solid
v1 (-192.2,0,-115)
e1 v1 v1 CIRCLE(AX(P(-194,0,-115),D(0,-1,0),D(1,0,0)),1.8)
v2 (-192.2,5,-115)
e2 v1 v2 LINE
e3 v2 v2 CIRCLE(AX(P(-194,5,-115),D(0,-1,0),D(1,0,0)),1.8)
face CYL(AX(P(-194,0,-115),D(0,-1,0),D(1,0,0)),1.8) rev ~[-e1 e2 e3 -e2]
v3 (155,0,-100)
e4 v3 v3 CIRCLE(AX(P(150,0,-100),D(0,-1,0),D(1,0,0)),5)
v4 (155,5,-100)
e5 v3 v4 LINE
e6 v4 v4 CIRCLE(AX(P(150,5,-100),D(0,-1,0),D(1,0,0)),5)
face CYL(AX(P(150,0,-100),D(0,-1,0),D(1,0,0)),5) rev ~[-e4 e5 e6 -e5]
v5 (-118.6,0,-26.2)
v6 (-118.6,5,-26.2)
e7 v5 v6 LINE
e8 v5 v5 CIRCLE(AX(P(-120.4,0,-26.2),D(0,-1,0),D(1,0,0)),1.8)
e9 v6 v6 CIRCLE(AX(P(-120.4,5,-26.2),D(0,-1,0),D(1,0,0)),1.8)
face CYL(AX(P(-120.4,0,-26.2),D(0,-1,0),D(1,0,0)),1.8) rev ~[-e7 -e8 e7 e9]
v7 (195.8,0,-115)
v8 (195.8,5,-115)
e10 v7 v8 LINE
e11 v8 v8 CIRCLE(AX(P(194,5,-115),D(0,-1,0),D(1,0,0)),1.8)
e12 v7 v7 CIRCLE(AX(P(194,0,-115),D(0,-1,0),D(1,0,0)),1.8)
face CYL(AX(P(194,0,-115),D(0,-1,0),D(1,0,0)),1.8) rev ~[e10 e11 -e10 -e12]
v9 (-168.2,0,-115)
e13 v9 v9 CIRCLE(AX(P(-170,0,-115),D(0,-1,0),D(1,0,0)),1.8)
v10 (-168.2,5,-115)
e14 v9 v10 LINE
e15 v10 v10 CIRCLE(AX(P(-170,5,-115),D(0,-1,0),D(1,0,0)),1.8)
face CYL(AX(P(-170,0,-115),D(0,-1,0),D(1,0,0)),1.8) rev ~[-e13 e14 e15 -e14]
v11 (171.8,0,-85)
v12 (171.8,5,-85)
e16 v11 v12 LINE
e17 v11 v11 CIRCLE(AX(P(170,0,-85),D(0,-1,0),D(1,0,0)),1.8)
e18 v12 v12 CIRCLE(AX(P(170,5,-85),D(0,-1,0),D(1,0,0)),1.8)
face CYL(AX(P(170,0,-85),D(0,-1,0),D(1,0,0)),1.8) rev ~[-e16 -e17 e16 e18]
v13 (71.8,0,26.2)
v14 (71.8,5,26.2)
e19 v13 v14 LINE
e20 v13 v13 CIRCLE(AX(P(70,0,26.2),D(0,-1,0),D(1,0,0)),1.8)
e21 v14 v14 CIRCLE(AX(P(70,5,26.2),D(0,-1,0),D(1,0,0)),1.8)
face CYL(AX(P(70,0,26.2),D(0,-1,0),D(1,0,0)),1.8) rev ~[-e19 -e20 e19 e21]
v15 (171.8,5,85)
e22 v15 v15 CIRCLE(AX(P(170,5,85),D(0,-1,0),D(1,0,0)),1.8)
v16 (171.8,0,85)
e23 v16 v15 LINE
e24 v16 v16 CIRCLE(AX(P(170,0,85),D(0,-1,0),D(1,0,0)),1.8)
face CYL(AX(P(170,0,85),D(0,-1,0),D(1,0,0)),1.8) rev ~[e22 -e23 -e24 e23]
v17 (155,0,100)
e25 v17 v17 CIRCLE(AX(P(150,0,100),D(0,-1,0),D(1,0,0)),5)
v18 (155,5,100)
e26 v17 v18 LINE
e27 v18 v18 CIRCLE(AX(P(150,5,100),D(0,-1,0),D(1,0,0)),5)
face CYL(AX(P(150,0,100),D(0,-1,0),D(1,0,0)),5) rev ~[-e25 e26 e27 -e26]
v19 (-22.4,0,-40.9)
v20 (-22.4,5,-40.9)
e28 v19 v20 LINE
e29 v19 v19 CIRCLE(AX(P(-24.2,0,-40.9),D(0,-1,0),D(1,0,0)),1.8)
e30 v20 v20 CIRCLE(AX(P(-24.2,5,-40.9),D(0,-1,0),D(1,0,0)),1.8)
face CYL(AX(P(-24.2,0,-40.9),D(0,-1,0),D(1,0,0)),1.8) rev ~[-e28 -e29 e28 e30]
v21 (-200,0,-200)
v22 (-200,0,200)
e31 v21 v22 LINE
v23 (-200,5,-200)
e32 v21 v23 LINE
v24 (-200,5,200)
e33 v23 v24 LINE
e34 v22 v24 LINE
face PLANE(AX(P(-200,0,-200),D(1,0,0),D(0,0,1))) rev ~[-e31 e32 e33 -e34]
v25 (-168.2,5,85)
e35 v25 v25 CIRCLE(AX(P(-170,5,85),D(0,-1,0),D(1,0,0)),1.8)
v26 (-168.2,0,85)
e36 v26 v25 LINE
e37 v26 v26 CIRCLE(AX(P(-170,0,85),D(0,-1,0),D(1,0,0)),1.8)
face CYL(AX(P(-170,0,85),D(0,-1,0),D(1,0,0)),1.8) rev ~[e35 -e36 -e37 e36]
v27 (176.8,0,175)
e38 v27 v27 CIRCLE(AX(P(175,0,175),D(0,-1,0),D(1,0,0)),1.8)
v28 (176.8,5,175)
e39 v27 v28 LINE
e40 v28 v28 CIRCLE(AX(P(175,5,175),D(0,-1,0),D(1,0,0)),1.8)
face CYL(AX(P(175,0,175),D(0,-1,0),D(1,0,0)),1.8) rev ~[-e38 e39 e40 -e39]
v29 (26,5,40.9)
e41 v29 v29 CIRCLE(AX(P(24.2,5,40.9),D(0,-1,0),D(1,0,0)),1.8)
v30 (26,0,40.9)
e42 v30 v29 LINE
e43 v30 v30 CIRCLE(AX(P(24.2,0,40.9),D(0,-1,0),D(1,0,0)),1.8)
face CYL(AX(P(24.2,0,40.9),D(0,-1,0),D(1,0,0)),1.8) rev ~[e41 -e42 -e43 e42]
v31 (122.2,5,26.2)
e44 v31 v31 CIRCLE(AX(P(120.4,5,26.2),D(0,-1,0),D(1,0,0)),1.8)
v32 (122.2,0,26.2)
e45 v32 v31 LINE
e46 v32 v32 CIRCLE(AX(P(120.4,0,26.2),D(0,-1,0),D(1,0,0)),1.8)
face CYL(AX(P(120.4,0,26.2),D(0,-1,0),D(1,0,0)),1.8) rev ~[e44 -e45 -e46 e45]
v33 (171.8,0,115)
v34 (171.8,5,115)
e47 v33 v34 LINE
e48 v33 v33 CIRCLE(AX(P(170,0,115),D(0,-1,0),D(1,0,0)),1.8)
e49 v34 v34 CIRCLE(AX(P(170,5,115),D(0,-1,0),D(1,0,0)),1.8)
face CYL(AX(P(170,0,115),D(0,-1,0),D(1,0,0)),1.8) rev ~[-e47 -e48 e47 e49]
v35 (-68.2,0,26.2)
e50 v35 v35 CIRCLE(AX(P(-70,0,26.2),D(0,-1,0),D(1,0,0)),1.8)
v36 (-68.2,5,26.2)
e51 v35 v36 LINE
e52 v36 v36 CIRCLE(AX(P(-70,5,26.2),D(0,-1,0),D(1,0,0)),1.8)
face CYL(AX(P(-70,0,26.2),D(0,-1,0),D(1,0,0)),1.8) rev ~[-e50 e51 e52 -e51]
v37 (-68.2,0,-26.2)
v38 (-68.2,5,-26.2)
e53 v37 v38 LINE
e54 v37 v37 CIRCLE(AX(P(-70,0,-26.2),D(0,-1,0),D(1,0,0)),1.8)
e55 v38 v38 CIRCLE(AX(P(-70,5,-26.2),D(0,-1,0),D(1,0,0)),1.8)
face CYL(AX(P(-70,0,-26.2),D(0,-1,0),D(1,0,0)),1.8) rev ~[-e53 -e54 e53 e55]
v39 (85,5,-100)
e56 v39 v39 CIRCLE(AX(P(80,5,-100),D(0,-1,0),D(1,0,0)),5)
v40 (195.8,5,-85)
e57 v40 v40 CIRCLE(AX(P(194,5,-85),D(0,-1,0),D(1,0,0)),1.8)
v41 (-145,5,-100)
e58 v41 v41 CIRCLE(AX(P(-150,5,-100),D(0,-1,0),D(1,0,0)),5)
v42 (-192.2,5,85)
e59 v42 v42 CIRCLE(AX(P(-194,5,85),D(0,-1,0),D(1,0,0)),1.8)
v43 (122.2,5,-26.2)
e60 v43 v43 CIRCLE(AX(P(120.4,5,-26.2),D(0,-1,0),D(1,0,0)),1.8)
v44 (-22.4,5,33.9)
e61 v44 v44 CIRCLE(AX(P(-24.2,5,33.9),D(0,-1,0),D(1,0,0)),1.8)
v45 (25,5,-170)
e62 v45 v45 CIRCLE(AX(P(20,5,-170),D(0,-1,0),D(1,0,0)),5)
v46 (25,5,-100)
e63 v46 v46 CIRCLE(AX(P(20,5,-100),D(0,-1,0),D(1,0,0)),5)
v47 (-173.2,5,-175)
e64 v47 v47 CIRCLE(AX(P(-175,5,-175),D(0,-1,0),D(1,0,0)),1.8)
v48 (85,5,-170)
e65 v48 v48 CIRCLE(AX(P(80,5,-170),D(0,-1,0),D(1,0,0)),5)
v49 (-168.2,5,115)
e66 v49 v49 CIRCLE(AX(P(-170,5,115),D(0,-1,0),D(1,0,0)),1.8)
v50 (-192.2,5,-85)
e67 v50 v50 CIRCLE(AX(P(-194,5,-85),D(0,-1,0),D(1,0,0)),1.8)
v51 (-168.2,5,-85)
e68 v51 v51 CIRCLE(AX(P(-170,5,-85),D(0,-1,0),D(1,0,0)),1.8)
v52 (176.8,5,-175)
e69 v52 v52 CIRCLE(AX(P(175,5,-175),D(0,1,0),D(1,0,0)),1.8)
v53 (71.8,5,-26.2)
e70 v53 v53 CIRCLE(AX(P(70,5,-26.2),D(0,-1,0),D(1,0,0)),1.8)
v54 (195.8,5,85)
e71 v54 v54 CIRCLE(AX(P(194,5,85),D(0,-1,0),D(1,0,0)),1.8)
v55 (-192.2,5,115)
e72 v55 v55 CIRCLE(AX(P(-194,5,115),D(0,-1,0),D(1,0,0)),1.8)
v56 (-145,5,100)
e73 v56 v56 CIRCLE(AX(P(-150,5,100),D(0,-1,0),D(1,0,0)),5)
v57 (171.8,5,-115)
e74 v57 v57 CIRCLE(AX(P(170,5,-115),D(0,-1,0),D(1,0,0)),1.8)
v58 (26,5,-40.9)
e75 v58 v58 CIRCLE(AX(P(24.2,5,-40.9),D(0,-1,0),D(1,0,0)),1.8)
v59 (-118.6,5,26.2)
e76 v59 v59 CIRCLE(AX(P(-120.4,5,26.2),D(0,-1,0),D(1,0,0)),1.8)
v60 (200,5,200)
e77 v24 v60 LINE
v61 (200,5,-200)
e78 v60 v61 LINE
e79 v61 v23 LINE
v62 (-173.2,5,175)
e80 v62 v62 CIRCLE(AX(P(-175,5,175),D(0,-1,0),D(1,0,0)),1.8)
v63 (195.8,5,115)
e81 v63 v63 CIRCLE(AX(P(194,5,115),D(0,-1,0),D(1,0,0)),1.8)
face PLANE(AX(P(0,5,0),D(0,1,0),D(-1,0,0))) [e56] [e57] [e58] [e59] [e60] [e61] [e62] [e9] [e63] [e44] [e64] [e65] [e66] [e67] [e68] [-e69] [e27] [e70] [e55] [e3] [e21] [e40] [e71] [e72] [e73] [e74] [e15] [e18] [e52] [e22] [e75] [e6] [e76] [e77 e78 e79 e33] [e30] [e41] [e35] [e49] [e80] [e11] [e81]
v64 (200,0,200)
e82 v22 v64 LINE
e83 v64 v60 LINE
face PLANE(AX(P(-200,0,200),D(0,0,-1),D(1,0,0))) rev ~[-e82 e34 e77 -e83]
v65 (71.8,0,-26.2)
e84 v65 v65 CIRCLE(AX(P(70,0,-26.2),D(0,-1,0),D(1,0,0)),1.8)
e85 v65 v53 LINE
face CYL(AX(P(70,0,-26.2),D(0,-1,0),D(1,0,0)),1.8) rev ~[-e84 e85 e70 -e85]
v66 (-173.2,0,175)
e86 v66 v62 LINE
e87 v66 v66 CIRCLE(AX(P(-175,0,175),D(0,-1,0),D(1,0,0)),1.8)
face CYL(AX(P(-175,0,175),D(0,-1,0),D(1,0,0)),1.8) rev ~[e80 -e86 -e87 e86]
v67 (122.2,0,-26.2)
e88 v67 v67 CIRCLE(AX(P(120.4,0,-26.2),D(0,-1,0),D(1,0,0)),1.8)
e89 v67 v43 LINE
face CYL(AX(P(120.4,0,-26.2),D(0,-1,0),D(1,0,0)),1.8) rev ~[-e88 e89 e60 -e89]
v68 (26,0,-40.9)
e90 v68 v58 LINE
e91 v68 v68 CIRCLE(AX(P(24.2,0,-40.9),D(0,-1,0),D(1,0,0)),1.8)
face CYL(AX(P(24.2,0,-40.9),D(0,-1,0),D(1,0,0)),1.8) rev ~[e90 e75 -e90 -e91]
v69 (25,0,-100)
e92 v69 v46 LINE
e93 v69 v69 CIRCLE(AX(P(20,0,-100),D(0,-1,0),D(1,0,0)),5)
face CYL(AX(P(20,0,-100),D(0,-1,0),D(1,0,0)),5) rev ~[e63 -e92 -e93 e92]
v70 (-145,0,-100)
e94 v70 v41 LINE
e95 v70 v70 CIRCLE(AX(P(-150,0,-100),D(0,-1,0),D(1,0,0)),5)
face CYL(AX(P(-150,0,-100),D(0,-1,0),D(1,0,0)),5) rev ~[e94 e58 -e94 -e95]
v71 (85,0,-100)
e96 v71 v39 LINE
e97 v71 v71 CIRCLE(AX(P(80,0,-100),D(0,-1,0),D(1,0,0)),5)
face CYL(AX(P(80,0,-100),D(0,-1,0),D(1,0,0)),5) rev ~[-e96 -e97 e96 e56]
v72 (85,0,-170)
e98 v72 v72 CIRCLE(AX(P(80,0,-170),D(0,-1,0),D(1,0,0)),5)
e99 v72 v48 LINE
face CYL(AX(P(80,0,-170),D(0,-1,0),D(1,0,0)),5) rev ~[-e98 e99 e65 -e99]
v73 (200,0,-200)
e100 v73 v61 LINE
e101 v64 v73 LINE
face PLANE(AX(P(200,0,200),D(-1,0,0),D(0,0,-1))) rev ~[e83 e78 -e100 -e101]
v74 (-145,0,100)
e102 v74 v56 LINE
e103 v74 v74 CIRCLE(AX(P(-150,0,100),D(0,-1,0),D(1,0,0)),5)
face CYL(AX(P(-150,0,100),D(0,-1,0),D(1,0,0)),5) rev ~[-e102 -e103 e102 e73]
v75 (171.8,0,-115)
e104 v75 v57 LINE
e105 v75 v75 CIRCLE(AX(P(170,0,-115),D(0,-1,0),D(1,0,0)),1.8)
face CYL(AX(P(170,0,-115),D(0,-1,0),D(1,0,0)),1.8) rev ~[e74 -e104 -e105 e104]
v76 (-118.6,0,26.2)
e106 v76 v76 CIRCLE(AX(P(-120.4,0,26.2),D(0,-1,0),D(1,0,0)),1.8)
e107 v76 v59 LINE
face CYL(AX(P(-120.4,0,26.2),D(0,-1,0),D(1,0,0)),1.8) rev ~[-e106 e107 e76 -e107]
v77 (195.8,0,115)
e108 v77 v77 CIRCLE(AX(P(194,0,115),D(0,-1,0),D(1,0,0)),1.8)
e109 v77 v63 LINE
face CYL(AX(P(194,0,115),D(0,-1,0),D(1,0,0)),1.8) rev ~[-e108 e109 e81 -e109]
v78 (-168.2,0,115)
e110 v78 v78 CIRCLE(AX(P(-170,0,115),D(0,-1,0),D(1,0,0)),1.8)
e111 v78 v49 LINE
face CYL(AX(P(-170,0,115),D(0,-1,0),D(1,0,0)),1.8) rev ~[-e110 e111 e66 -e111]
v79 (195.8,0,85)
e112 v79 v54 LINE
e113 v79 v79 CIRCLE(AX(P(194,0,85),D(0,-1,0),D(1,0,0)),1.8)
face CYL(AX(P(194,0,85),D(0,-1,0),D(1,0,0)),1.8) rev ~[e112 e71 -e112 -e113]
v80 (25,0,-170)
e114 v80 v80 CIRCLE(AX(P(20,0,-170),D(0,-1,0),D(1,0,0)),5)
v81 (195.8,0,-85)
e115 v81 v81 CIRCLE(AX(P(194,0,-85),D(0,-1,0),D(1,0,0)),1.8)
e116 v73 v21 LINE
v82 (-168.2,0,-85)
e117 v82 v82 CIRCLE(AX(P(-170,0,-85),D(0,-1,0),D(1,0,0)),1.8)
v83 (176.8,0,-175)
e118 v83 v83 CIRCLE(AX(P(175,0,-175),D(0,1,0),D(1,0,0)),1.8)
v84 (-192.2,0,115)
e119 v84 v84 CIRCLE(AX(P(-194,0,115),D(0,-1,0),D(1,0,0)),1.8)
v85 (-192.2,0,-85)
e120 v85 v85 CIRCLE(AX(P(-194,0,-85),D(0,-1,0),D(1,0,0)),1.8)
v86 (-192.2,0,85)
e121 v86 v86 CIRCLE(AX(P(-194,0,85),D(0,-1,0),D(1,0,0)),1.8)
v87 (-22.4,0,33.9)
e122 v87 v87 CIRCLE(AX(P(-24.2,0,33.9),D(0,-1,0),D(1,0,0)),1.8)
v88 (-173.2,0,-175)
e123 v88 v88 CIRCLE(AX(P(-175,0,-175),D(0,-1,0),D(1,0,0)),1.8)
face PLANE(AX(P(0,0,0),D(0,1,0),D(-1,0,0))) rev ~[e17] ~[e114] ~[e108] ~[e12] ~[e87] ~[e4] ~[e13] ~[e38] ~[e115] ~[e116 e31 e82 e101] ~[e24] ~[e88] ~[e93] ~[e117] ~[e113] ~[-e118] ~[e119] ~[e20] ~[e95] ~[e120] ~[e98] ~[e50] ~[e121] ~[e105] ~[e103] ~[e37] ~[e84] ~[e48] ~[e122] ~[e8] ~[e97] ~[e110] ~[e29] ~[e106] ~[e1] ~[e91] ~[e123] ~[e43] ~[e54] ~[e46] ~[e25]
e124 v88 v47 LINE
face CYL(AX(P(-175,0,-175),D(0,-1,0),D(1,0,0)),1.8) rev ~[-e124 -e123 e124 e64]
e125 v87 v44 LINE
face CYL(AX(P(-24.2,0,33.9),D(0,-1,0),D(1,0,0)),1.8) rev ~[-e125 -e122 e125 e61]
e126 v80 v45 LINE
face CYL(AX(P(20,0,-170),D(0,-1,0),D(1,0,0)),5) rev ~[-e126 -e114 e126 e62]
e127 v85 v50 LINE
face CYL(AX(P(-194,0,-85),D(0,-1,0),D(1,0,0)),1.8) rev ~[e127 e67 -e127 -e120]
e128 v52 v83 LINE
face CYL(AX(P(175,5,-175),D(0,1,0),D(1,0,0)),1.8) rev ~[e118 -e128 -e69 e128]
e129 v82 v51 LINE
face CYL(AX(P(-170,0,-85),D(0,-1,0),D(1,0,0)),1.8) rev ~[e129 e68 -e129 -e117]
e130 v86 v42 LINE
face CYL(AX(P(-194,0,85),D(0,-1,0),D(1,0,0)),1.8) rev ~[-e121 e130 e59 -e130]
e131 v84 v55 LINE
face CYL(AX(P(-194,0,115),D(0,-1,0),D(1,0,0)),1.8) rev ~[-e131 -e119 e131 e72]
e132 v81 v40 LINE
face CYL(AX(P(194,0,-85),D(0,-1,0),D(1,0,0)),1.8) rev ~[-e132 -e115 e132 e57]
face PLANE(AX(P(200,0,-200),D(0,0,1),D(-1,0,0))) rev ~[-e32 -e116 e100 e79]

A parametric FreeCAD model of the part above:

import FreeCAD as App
import Part
import Sketcher
from FreeCAD import Vector
Q = App.Units.Quantity

doc = App.newDocument("Part")
body = doc.addObject("PartDesign::Body", "Body")

sketch1 = doc.addObject("Sketcher::SketchObject", "Sketch")
body.addObject(sketch1)
sketch1.AttachmentSupport = (doc.XZ_Plane, [""])
sketch1.MapMode = "FlatFace"
sketch1.addGeometry([
    Part.LineSegment(Vector(-200, -200, 0), Vector(-200, 200, 0)),
    Part.LineSegment(Vector(-200, 200, 0), Vector(200, 200, 0)),
    Part.LineSegment(Vector(200, 200, 0), Vector(200, -200, 0)),
    Part.LineSegment(Vector(200, -200, 0), Vector(-200, -200, 0)),
], False)
sketch1.addConstraint([
    Sketcher.Constraint("Coincident", 0, 2, 1, 1),
    Sketcher.Constraint("Coincident", 1, 2, 2, 1),
    Sketcher.Constraint("Coincident", 2, 2, 3, 1),
    Sketcher.Constraint("Coincident", 3, 2, 0, 1),
    Sketcher.Constraint("Vertical", 0),
    Sketcher.Constraint("Horizontal", 1),
    Sketcher.Constraint("Vertical", 2),
    Sketcher.Constraint("Horizontal", 3),
    Sketcher.Constraint("Symmetric", 0, 2, 2, 2, -1, 1),
    Sketcher.Constraint("Equal", 3, 0),
    Sketcher.Constraint("DistanceX", 1, 1, 1, 2, Q("400 mm")),
])
pad1 = doc.addObject("PartDesign::Pad", "Pad")
body.addObject(pad1)
pad1.Profile = sketch1
pad1.Length = 5
pad1.Reversed = True

sketch2 = doc.addObject("Sketcher::SketchObject", "Sketch001")
body.addObject(sketch2)
sketch2.AttachmentSupport = (doc.XZ_Plane, [""])
sketch2.MapMode = "FlatFace"
sketch2.AttachmentOffset = App.Placement(Vector(0, 0, -5), App.Rotation())
sketch2.addGeometry(Part.Circle(Vector(175, -175, 0), Vector(0, 0, 1), 1.8), False)
sketch2.addConstraint([
    Sketcher.Constraint("Diameter", 0, Q("3.6 mm")),
    Sketcher.Constraint("DistanceX", -1, 1, 0, 3, Q("175 mm")),
    Sketcher.Constraint("DistanceY", 0, 3, -1, 1, Q("175 mm")),
])
pocket1 = doc.addObject("PartDesign::Pocket", "Pocket")
body.addObject(pocket1)
pocket1.Profile = sketch2
pocket1.Type = "ThroughAll"
pocket1.Reversed = True

sketch3 = doc.addObject("Sketcher::SketchObject", "Sketch002")
body.addObject(sketch3)
sketch3.AttachmentSupport = (doc.XZ_Plane, [""])
sketch3.MapMode = "FlatFace"
sketch3.addGeometry(Part.Circle(Vector(175, 175, 0), Vector(0, 0, 1), 1.8), False)
sketch3.addConstraint([
    Sketcher.Constraint("Diameter", 0, Q("3.6 mm")),
    Sketcher.Constraint("DistanceX", -1, 1, 0, 3, Q("175 mm")),
    Sketcher.Constraint("DistanceY", -1, 1, 0, 3, Q("175 mm")),
])
pocket2 = doc.addObject("PartDesign::Pocket", "Pocket001")
body.addObject(pocket2)
pocket2.Profile = sketch3
pocket2.Type = "ThroughAll"

sketch4 = doc.addObject("Sketcher::SketchObject", "Sketch003")
body.addObject(sketch4)
sketch4.AttachmentSupport = (doc.XZ_Plane, [""])
sketch4.MapMode = "FlatFace"
sketch4.addGeometry(Part.Circle(Vector(-175, -175, 0), Vector(0, 0, 1), 1.8), False)
sketch4.addConstraint([
    Sketcher.Constraint("Diameter", 0, Q("3.6 mm")),
    Sketcher.Constraint("DistanceX", 0, 3, -1, 1, Q("175 mm")),
    Sketcher.Constraint("DistanceY", 0, 3, -1, 1, Q("175 mm")),
])
pocket3 = doc.addObject("PartDesign::Pocket", "Pocket002")
body.addObject(pocket3)
pocket3.Profile = sketch4
pocket3.Type = "ThroughAll"

sketch5 = doc.addObject("Sketcher::SketchObject", "Sketch004")
body.addObject(sketch5)
sketch5.AttachmentSupport = (doc.XZ_Plane, [""])
sketch5.MapMode = "FlatFace"
sketch5.addGeometry(Part.Circle(Vector(-175, 175, 0), Vector(0, 0, 1), 1.8), False)
sketch5.addConstraint([
    Sketcher.Constraint("Diameter", 0, Q("3.6 mm")),
    Sketcher.Constraint("DistanceX", 0, 3, -1, 1, Q("175 mm")),
    Sketcher.Constraint("DistanceY", -1, 1, 0, 3, Q("175 mm")),
])
pocket4 = doc.addObject("PartDesign::Pocket", "Pocket003")
body.addObject(pocket4)
pocket4.Profile = sketch5
pocket4.Type = "ThroughAll"

sketch6 = doc.addObject("Sketcher::SketchObject", "Sketch005")
body.addObject(sketch6)
sketch6.AttachmentSupport = (doc.XZ_Plane, [""])
sketch6.MapMode = "FlatFace"
sketch6.addGeometry(Part.Circle(Vector(-194, -85, 0), Vector(0, 0, 1), 1.8), False)
sketch6.addConstraint([
    Sketcher.Constraint("Diameter", 0, Q("3.6 mm")),
    Sketcher.Constraint("DistanceX", 0, 3, -1, 1, Q("194 mm")),
    Sketcher.Constraint("DistanceY", 0, 3, -1, 1, Q("85 mm")),
])
pocket5 = doc.addObject("PartDesign::Pocket", "Pocket004")
body.addObject(pocket5)
pocket5.Profile = sketch6
pocket5.Type = "ThroughAll"

sketch7 = doc.addObject("Sketcher::SketchObject", "Sketch006")
body.addObject(sketch7)
sketch7.AttachmentSupport = (doc.XZ_Plane, [""])
sketch7.MapMode = "FlatFace"
sketch7.addGeometry(Part.Circle(Vector(-170, -85, 0), Vector(0, 0, 1), 1.8), False)
sketch7.addConstraint([
    Sketcher.Constraint("Diameter", 0, Q("3.6 mm")),
    Sketcher.Constraint("DistanceX", 0, 3, -1, 1, Q("170 mm")),
    Sketcher.Constraint("DistanceY", 0, 3, -1, 1, Q("85 mm")),
])
pocket6 = doc.addObject("PartDesign::Pocket", "Pocket005")
body.addObject(pocket6)
pocket6.Profile = sketch7
pocket6.Type = "ThroughAll"

sketch8 = doc.addObject("Sketcher::SketchObject", "Sketch007")
body.addObject(sketch8)
sketch8.AttachmentSupport = (doc.XZ_Plane, [""])
sketch8.MapMode = "FlatFace"
sketch8.addGeometry(Part.Circle(Vector(-194, -115, 0), Vector(0, 0, 1), 1.8), False)
sketch8.addConstraint([
    Sketcher.Constraint("Diameter", 0, Q("3.6 mm")),
    Sketcher.Constraint("DistanceX", 0, 3, -1, 1, Q("194 mm")),
    Sketcher.Constraint("DistanceY", 0, 3, -1, 1, Q("115 mm")),
])
pocket7 = doc.addObject("PartDesign::Pocket", "Pocket006")
body.addObject(pocket7)
pocket7.Profile = sketch8
pocket7.Type = "ThroughAll"

sketch9 = doc.addObject("Sketcher::SketchObject", "Sketch008")
body.addObject(sketch9)
sketch9.AttachmentSupport = (doc.XZ_Plane, [""])
sketch9.MapMode = "FlatFace"
sketch9.addGeometry(Part.Circle(Vector(-170, -115, 0), Vector(0, 0, 1), 1.8), False)
sketch9.addConstraint([
    Sketcher.Constraint("Diameter", 0, Q("3.6 mm")),
    Sketcher.Constraint("DistanceX", 0, 3, -1, 1, Q("170 mm")),
    Sketcher.Constraint("DistanceY", 0, 3, -1, 1, Q("115 mm")),
])
pocket8 = doc.addObject("PartDesign::Pocket", "Pocket007")
body.addObject(pocket8)
pocket8.Profile = sketch9
pocket8.Type = "ThroughAll"

sketch10 = doc.addObject("Sketcher::SketchObject", "Sketch009")
body.addObject(sketch10)
sketch10.AttachmentSupport = (doc.XZ_Plane, [""])
sketch10.MapMode = "FlatFace"
sketch10.addGeometry(Part.Circle(Vector(194, 85, 0), Vector(0, 0, 1), 1.8), False)
sketch10.addConstraint([
    Sketcher.Constraint("Diameter", 0, Q("3.6 mm")),
    Sketcher.Constraint("DistanceX", -1, 1, 0, 3, Q("194 mm")),
    Sketcher.Constraint("DistanceY", -1, 1, 0, 3, Q("85 mm")),
])
pocket9 = doc.addObject("PartDesign::Pocket", "Pocket008")
body.addObject(pocket9)
pocket9.Profile = sketch10
pocket9.Type = "ThroughAll"

sketch11 = doc.addObject("Sketcher::SketchObject", "Sketch010")
body.addObject(sketch11)
sketch11.AttachmentSupport = (doc.XZ_Plane, [""])
sketch11.MapMode = "FlatFace"
sketch11.addGeometry(Part.Circle(Vector(194, 115, 0), Vector(0, 0, 1), 1.8), False)
sketch11.addConstraint([
    Sketcher.Constraint("Diameter", 0, Q("3.6 mm")),
    Sketcher.Constraint("DistanceX", -1, 1, 0, 3, Q("194 mm")),
    Sketcher.Constraint("DistanceY", -1, 1, 0, 3, Q("115 mm")),
])
pocket10 = doc.addObject("PartDesign::Pocket", "Pocket009")
body.addObject(pocket10)
pocket10.Profile = sketch11
pocket10.Type = "ThroughAll"

sketch12 = doc.addObject("Sketcher::SketchObject", "Sketch011")
body.addObject(sketch12)
sketch12.AttachmentSupport = (doc.XZ_Plane, [""])
sketch12.MapMode = "FlatFace"
sketch12.addGeometry(Part.Circle(Vector(170, 85, 0), Vector(0, 0, 1), 1.8), False)
sketch12.addConstraint([
    Sketcher.Constraint("Diameter", 0, Q("3.6 mm")),
    Sketcher.Constraint("DistanceX", -1, 1, 0, 3, Q("170 mm")),
    Sketcher.Constraint("DistanceY", -1, 1, 0, 3, Q("85 mm")),
])
pocket11 = doc.addObject("PartDesign::Pocket", "Pocket010")
body.addObject(pocket11)
pocket11.Profile = sketch12
pocket11.Type = "ThroughAll"

sketch13 = doc.addObject("Sketcher::SketchObject", "Sketch012")
body.addObject(sketch13)
sketch13.AttachmentSupport = (doc.XZ_Plane, [""])
sketch13.MapMode = "FlatFace"
sketch13.addGeometry(Part.Circle(Vector(170, 115, 0), Vector(0, 0, 1), 1.8), False)
sketch13.addConstraint([
    Sketcher.Constraint("Diameter", 0, Q("3.6 mm")),
    Sketcher.Constraint("DistanceX", -1, 1, 0, 3, Q("170 mm")),
    Sketcher.Constraint("DistanceY", -1, 1, 0, 3, Q("115 mm")),
])
pocket12 = doc.addObject("PartDesign::Pocket", "Pocket011")
body.addObject(pocket12)
pocket12.Profile = sketch13
pocket12.Type = "ThroughAll"

sketch14 = doc.addObject("Sketcher::SketchObject", "Sketch013")
body.addObject(sketch14)
sketch14.AttachmentSupport = (doc.XZ_Plane, [""])
sketch14.MapMode = "FlatFace"
sketch14.addGeometry(Part.Circle(Vector(194, -85, 0), Vector(0, 0, 1), 1.8), False)
sketch14.addConstraint([
    Sketcher.Constraint("Diameter", 0, Q("3.6 mm")),
    Sketcher.Constraint("DistanceX", -1, 1, 0, 3, Q("194 mm")),
    Sketcher.Constraint("DistanceY", 0, 3, -1, 1, Q("85 mm")),
])
pocket13 = doc.addObject("PartDesign::Pocket", "Pocket012")
body.addObject(pocket13)
pocket13.Profile = sketch14
pocket13.Type = "ThroughAll"

sketch15 = doc.addObject("Sketcher::SketchObject", "Sketch014")
body.addObject(sketch15)
sketch15.AttachmentSupport = (doc.XZ_Plane, [""])
sketch15.MapMode = "FlatFace"
sketch15.addGeometry(Part.Circle(Vector(194, -115, 0), Vector(0, 0, 1), 1.8), False)
sketch15.addConstraint([
    Sketcher.Constraint("Diameter", 0, Q("3.6 mm")),
    Sketcher.Constraint("DistanceX", -1, 1, 0, 3, Q("194 mm")),
    Sketcher.Constraint("DistanceY", 0, 3, -1, 1, Q("115 mm")),
])
pocket14 = doc.addObject("PartDesign::Pocket", "Pocket013")
body.addObject(pocket14)
pocket14.Profile = sketch15
pocket14.Type = "ThroughAll"

sketch16 = doc.addObject("Sketcher::SketchObject", "Sketch015")
body.addObject(sketch16)
sketch16.AttachmentSupport = (doc.XZ_Plane, [""])
sketch16.MapMode = "FlatFace"
sketch16.addGeometry(Part.Circle(Vector(170, -85, 0), Vector(0, 0, 1), 1.8), False)
sketch16.addConstraint([
    Sketcher.Constraint("Diameter", 0, Q("3.6 mm")),
    Sketcher.Constraint("DistanceX", -1, 1, 0, 3, Q("170 mm")),
    Sketcher.Constraint("DistanceY", 0, 3, -1, 1, Q("85 mm")),
])
pocket15 = doc.addObject("PartDesign::Pocket", "Pocket014")
body.addObject(pocket15)
pocket15.Profile = sketch16
pocket15.Type = "ThroughAll"

sketch17 = doc.addObject("Sketcher::SketchObject", "Sketch016")
body.addObject(sketch17)
sketch17.AttachmentSupport = (doc.XZ_Plane, [""])
sketch17.MapMode = "FlatFace"
sketch17.addGeometry(Part.Circle(Vector(170, -115, 0), Vector(0, 0, 1), 1.8), False)
sketch17.addConstraint([
    Sketcher.Constraint("Diameter", 0, Q("3.6 mm")),
    Sketcher.Constraint("DistanceX", -1, 1, 0, 3, Q("170 mm")),
    Sketcher.Constraint("DistanceY", 0, 3, -1, 1, Q("115 mm")),
])
pocket16 = doc.addObject("PartDesign::Pocket", "Pocket015")
body.addObject(pocket16)
pocket16.Profile = sketch17
pocket16.Type = "ThroughAll"

sketch18 = doc.addObject("Sketcher::SketchObject", "Sketch017")
body.addObject(sketch18)
sketch18.AttachmentSupport = (doc.XZ_Plane, [""])
sketch18.MapMode = "FlatFace"
sketch18.addGeometry(Part.Circle(Vector(-194, 115, 0), Vector(0, 0, 1), 1.8), False)
sketch18.addConstraint([
    Sketcher.Constraint("Diameter", 0, Q("3.6 mm")),
    Sketcher.Constraint("DistanceX", 0, 3, -1, 1, Q("194 mm")),
    Sketcher.Constraint("DistanceY", -1, 1, 0, 3, Q("115 mm")),
])
pocket17 = doc.addObject("PartDesign::Pocket", "Pocket016")
body.addObject(pocket17)
pocket17.Profile = sketch18
pocket17.Type = "ThroughAll"

sketch19 = doc.addObject("Sketcher::SketchObject", "Sketch018")
body.addObject(sketch19)
sketch19.AttachmentSupport = (doc.XZ_Plane, [""])
sketch19.MapMode = "FlatFace"
sketch19.addGeometry(Part.Circle(Vector(-194, 85, 0), Vector(0, 0, 1), 1.8), False)
sketch19.addConstraint([
    Sketcher.Constraint("Diameter", 0, Q("3.6 mm")),
    Sketcher.Constraint("DistanceX", 0, 3, -1, 1, Q("194 mm")),
    Sketcher.Constraint("DistanceY", -1, 1, 0, 3, Q("85 mm")),
])
pocket18 = doc.addObject("PartDesign::Pocket", "Pocket017")
body.addObject(pocket18)
pocket18.Profile = sketch19
pocket18.Type = "ThroughAll"

sketch20 = doc.addObject("Sketcher::SketchObject", "Sketch019")
body.addObject(sketch20)
sketch20.AttachmentSupport = (doc.XZ_Plane, [""])
sketch20.MapMode = "FlatFace"
sketch20.addGeometry(Part.Circle(Vector(-170, 115, 0), Vector(0, 0, 1), 1.8), False)
sketch20.addConstraint([
    Sketcher.Constraint("Diameter", 0, Q("3.6 mm")),
    Sketcher.Constraint("DistanceX", 0, 3, -1, 1, Q("170 mm")),
    Sketcher.Constraint("DistanceY", -1, 1, 0, 3, Q("115 mm")),
])
pocket19 = doc.addObject("PartDesign::Pocket", "Pocket018")
body.addObject(pocket19)
pocket19.Profile = sketch20
pocket19.Type = "ThroughAll"

sketch21 = doc.addObject("Sketcher::SketchObject", "Sketch020")
body.addObject(sketch21)
sketch21.AttachmentSupport = (doc.XZ_Plane, [""])
sketch21.MapMode = "FlatFace"
sketch21.addGeometry(Part.Circle(Vector(-170, 85, 0), Vector(0, 0, 1), 1.8), False)
sketch21.addConstraint([
    Sketcher.Constraint("Diameter", 0, Q("3.6 mm")),
    Sketcher.Constraint("DistanceX", 0, 3, -1, 1, Q("170 mm")),
    Sketcher.Constraint("DistanceY", -1, 1, 0, 3, Q("85 mm")),
])
pocket20 = doc.addObject("PartDesign::Pocket", "Pocket019")
body.addObject(pocket20)
pocket20.Profile = sketch21
pocket20.Type = "ThroughAll"

sketch22 = doc.addObject("Sketcher::SketchObject", "Sketch021")
body.addObject(sketch22)
sketch22.AttachmentSupport = (doc.XZ_Plane, [""])
sketch22.MapMode = "FlatFace"
sketch22.addGeometry(Part.Circle(Vector(150, 100, 0), Vector(0, 0, 1), 5), False)
sketch22.addConstraint([
    Sketcher.Constraint("Diameter", 0, Q("10 mm")),
    Sketcher.Constraint("DistanceX", -1, 1, 0, 3, Q("150 mm")),
    Sketcher.Constraint("DistanceY", -1, 1, 0, 3, Q("100 mm")),
])
pocket21 = doc.addObject("PartDesign::Pocket", "Pocket020")
body.addObject(pocket21)
pocket21.Profile = sketch22
pocket21.Type = "ThroughAll"

sketch23 = doc.addObject("Sketcher::SketchObject", "Sketch022")
body.addObject(sketch23)
sketch23.AttachmentSupport = (doc.XZ_Plane, [""])
sketch23.MapMode = "FlatFace"
sketch23.addGeometry(Part.Circle(Vector(150, -100, 0), Vector(0, 0, 1), 5), False)
sketch23.addConstraint([
    Sketcher.Constraint("Diameter", 0, Q("10 mm")),
    Sketcher.Constraint("DistanceX", -1, 1, 0, 3, Q("150 mm")),
    Sketcher.Constraint("DistanceY", 0, 3, -1, 1, Q("100 mm")),
])
pocket22 = doc.addObject("PartDesign::Pocket", "Pocket021")
body.addObject(pocket22)
pocket22.Profile = sketch23
pocket22.Type = "ThroughAll"

sketch24 = doc.addObject("Sketcher::SketchObject", "Sketch023")
body.addObject(sketch24)
sketch24.AttachmentSupport = (doc.XZ_Plane, [""])
sketch24.MapMode = "FlatFace"
sketch24.addGeometry(Part.Circle(Vector(-150, 100, 0), Vector(0, 0, 1), 5), False)
sketch24.addConstraint([
    Sketcher.Constraint("Diameter", 0, Q("10 mm")),
    Sketcher.Constraint("DistanceX", 0, 3, -1, 1, Q("150 mm")),
    Sketcher.Constraint("DistanceY", -1, 1, 0, 3, Q("100 mm")),
])
pocket23 = doc.addObject("PartDesign::Pocket", "Pocket022")
body.addObject(pocket23)
pocket23.Profile = sketch24
pocket23.Type = "ThroughAll"

sketch25 = doc.addObject("Sketcher::SketchObject", "Sketch024")
body.addObject(sketch25)
sketch25.AttachmentSupport = (doc.XZ_Plane, [""])
sketch25.MapMode = "FlatFace"
sketch25.addGeometry(Part.Circle(Vector(-150, -100, 0), Vector(0, 0, 1), 5), False)
sketch25.addConstraint([
    Sketcher.Constraint("Diameter", 0, Q("10 mm")),
    Sketcher.Constraint("DistanceX", 0, 3, -1, 1, Q("150 mm")),
    Sketcher.Constraint("DistanceY", 0, 3, -1, 1, Q("100 mm")),
])
pocket24 = doc.addObject("PartDesign::Pocket", "Pocket023")
body.addObject(pocket24)
pocket24.Profile = sketch25
pocket24.Type = "ThroughAll"

sketch26 = doc.addObject("Sketcher::SketchObject", "Sketch025")
body.addObject(sketch26)
sketch26.AttachmentSupport = (doc.XZ_Plane, [""])
sketch26.MapMode = "FlatFace"
sketch26.addGeometry(Part.Circle(Vector(24.2, 40.9, 0), Vector(0, 0, 1), 1.8), False)
sketch26.addConstraint([
    Sketcher.Constraint("Diameter", 0, Q("3.6 mm")),
    Sketcher.Constraint("DistanceX", -1, 1, 0, 3, Q("24.2 mm")),
    Sketcher.Constraint("DistanceY", -1, 1, 0, 3, Q("40.9 mm")),
])
pocket25 = doc.addObject("PartDesign::Pocket", "Pocket024")
body.addObject(pocket25)
pocket25.Profile = sketch26
pocket25.Type = "ThroughAll"

sketch27 = doc.addObject("Sketcher::SketchObject", "Sketch026")
body.addObject(sketch27)
sketch27.AttachmentSupport = (doc.XZ_Plane, [""])
sketch27.MapMode = "FlatFace"
sketch27.addGeometry(Part.Circle(Vector(24.2, -40.9, 0), Vector(0, 0, 1), 1.8), False)
sketch27.addConstraint([
    Sketcher.Constraint("Diameter", 0, Q("3.6 mm")),
    Sketcher.Constraint("DistanceX", -1, 1, 0, 3, Q("24.2 mm")),
    Sketcher.Constraint("DistanceY", 0, 3, -1, 1, Q("40.9 mm")),
])
pocket26 = doc.addObject("PartDesign::Pocket", "Pocket025")
body.addObject(pocket26)
pocket26.Profile = sketch27
pocket26.Type = "ThroughAll"

sketch28 = doc.addObject("Sketcher::SketchObject", "Sketch027")
body.addObject(sketch28)
sketch28.AttachmentSupport = (doc.XZ_Plane, [""])
sketch28.MapMode = "FlatFace"
sketch28.addGeometry(Part.Circle(Vector(-24.2, -40.9, 0), Vector(0, 0, 1), 1.8), False)
sketch28.addConstraint([
    Sketcher.Constraint("Diameter", 0, Q("3.6 mm")),
    Sketcher.Constraint("DistanceX", 0, 3, -1, 1, Q("24.2 mm")),
    Sketcher.Constraint("DistanceY", 0, 3, -1, 1, Q("40.9 mm")),
])
pocket27 = doc.addObject("PartDesign::Pocket", "Pocket026")
body.addObject(pocket27)
pocket27.Profile = sketch28
pocket27.Type = "ThroughAll"

sketch29 = doc.addObject("Sketcher::SketchObject", "Sketch028")
body.addObject(sketch29)
sketch29.AttachmentSupport = (doc.XZ_Plane, [""])
sketch29.MapMode = "FlatFace"
sketch29.addGeometry(Part.Circle(Vector(-24.2, 33.9, 0), Vector(0, 0, 1), 1.8), False)
sketch29.addConstraint([
    Sketcher.Constraint("Diameter", 0, Q("3.6 mm")),
    Sketcher.Constraint("DistanceX", 0, 3, -1, 1, Q("24.2 mm")),
    Sketcher.Constraint("DistanceY", -1, 1, 0, 3, Q("33.9 mm")),
])
pocket28 = doc.addObject("PartDesign::Pocket", "Pocket027")
body.addObject(pocket28)
pocket28.Profile = sketch29
pocket28.Type = "ThroughAll"

sketch30 = doc.addObject("Sketcher::SketchObject", "Sketch029")
body.addObject(sketch30)
sketch30.AttachmentSupport = (doc.XZ_Plane, [""])
sketch30.MapMode = "FlatFace"
sketch30.addGeometry(Part.Circle(Vector(-120.4, 26.2, 0), Vector(0, 0, 1), 1.8), False)
sketch30.addConstraint([
    Sketcher.Constraint("Diameter", 0, Q("3.6 mm")),
    Sketcher.Constraint("DistanceX", 0, 3, -1, 1, Q("120.4 mm")),
    Sketcher.Constraint("DistanceY", -1, 1, 0, 3, Q("26.2 mm")),
])
pocket29 = doc.addObject("PartDesign::Pocket", "Pocket028")
body.addObject(pocket29)
pocket29.Profile = sketch30
pocket29.Type = "ThroughAll"

sketch31 = doc.addObject("Sketcher::SketchObject", "Sketch030")
body.addObject(sketch31)
sketch31.AttachmentSupport = (doc.XZ_Plane, [""])
sketch31.MapMode = "FlatFace"
sketch31.addGeometry(Part.Circle(Vector(-70, 26.2, 0), Vector(0, 0, 1), 1.8), False)
sketch31.addConstraint([
    Sketcher.Constraint("Diameter", 0, Q("3.6 mm")),
    Sketcher.Constraint("DistanceX", 0, 3, -1, 1, Q("70 mm")),
    Sketcher.Constraint("DistanceY", -1, 1, 0, 3, Q("26.2 mm")),
])
pocket30 = doc.addObject("PartDesign::Pocket", "Pocket029")
body.addObject(pocket30)
pocket30.Profile = sketch31
pocket30.Type = "ThroughAll"

sketch32 = doc.addObject("Sketcher::SketchObject", "Sketch031")
body.addObject(sketch32)
sketch32.AttachmentSupport = (doc.XZ_Plane, [""])
sketch32.MapMode = "FlatFace"
sketch32.addGeometry(Part.Circle(Vector(70, 26.2, 0), Vector(0, 0, 1), 1.8), False)
sketch32.addConstraint([
    Sketcher.Constraint("Diameter", 0, Q("3.6 mm")),
    Sketcher.Constraint("DistanceX", -1, 1, 0, 3, Q("70 mm")),
    Sketcher.Constraint("DistanceY", -1, 1, 0, 3, Q("26.2 mm")),
])
pocket31 = doc.addObject("PartDesign::Pocket", "Pocket030")
body.addObject(pocket31)
pocket31.Profile = sketch32
pocket31.Type = "ThroughAll"

sketch33 = doc.addObject("Sketcher::SketchObject", "Sketch032")
body.addObject(sketch33)
sketch33.AttachmentSupport = (doc.XZ_Plane, [""])
sketch33.MapMode = "FlatFace"
sketch33.addGeometry(Part.Circle(Vector(120.4, 26.2, 0), Vector(0, 0, 1), 1.8), False)
sketch33.addConstraint([
    Sketcher.Constraint("Diameter", 0, Q("3.6 mm")),
    Sketcher.Constraint("DistanceX", -1, 1, 0, 3, Q("120.4 mm")),
    Sketcher.Constraint("DistanceY", -1, 1, 0, 3, Q("26.2 mm")),
])
pocket32 = doc.addObject("PartDesign::Pocket", "Pocket031")
body.addObject(pocket32)
pocket32.Profile = sketch33
pocket32.Type = "ThroughAll"

sketch34 = doc.addObject("Sketcher::SketchObject", "Sketch033")
body.addObject(sketch34)
sketch34.AttachmentSupport = (doc.XZ_Plane, [""])
sketch34.MapMode = "FlatFace"
sketch34.addGeometry(Part.Circle(Vector(-70, -26.2, 0), Vector(0, 0, 1), 1.8), False)
sketch34.addConstraint([
    Sketcher.Constraint("Diameter", 0, Q("3.6 mm")),
    Sketcher.Constraint("DistanceX", 0, 3, -1, 1, Q("70 mm")),
    Sketcher.Constraint("DistanceY", 0, 3, -1, 1, Q("26.2 mm")),
])
pocket33 = doc.addObject("PartDesign::Pocket", "Pocket032")
body.addObject(pocket33)
pocket33.Profile = sketch34
pocket33.Type = "ThroughAll"

sketch35 = doc.addObject("Sketcher::SketchObject", "Sketch034")
body.addObject(sketch35)
sketch35.AttachmentSupport = (doc.XZ_Plane, [""])
sketch35.MapMode = "FlatFace"
sketch35.addGeometry(Part.Circle(Vector(70, -26.2, 0), Vector(0, 0, 1), 1.8), False)
sketch35.addConstraint([
    Sketcher.Constraint("Diameter", 0, Q("3.6 mm")),
    Sketcher.Constraint("DistanceX", -1, 1, 0, 3, Q("70 mm")),
    Sketcher.Constraint("DistanceY", 0, 3, -1, 1, Q("26.2 mm")),
])
pocket34 = doc.addObject("PartDesign::Pocket", "Pocket033")
body.addObject(pocket34)
pocket34.Profile = sketch35
pocket34.Type = "ThroughAll"

sketch36 = doc.addObject("Sketcher::SketchObject", "Sketch035")
body.addObject(sketch36)
sketch36.AttachmentSupport = (doc.XZ_Plane, [""])
sketch36.MapMode = "FlatFace"
sketch36.addGeometry(Part.Circle(Vector(120.4, -26.2, 0), Vector(0, 0, 1), 1.8), False)
sketch36.addConstraint([
    Sketcher.Constraint("Diameter", 0, Q("3.6 mm")),
    Sketcher.Constraint("DistanceX", -1, 1, 0, 3, Q("120.4 mm")),
    Sketcher.Constraint("DistanceY", 0, 3, -1, 1, Q("26.2 mm")),
])
pocket35 = doc.addObject("PartDesign::Pocket", "Pocket034")
body.addObject(pocket35)
pocket35.Profile = sketch36
pocket35.Type = "ThroughAll"

sketch37 = doc.addObject("Sketcher::SketchObject", "Sketch036")
body.addObject(sketch37)
sketch37.AttachmentSupport = (doc.XZ_Plane, [""])
sketch37.MapMode = "FlatFace"
sketch37.addGeometry(Part.Circle(Vector(-120.4, -26.2, 0), Vector(0, 0, 1), 1.8), False)
sketch37.addConstraint([
    Sketcher.Constraint("Diameter", 0, Q("3.6 mm")),
    Sketcher.Constraint("DistanceX", 0, 3, -1, 1, Q("120.4 mm")),
    Sketcher.Constraint("DistanceY", 0, 3, -1, 1, Q("26.2 mm")),
])
pocket36 = doc.addObject("PartDesign::Pocket", "Pocket035")
body.addObject(pocket36)
pocket36.Profile = sketch37
pocket36.Type = "ThroughAll"

sketch38 = doc.addObject("Sketcher::SketchObject", "Sketch037")
body.addObject(sketch38)
sketch38.AttachmentSupport = (doc.XZ_Plane, [""])
sketch38.MapMode = "FlatFace"
sketch38.addGeometry(Part.Circle(Vector(20, -100, 0), Vector(0, 0, 1), 5), False)
sketch38.addConstraint([
    Sketcher.Constraint("Diameter", 0, Q("10 mm")),
    Sketcher.Constraint("DistanceX", -1, 1, 0, 3, Q("20 mm")),
    Sketcher.Constraint("DistanceY", 0, 3, -1, 1, Q("100 mm")),
])
pocket37 = doc.addObject("PartDesign::Pocket", "Pocket036")
body.addObject(pocket37)
pocket37.Profile = sketch38
pocket37.Type = "ThroughAll"

sketch39 = doc.addObject("Sketcher::SketchObject", "Sketch038")
body.addObject(sketch39)
sketch39.AttachmentSupport = (doc.XZ_Plane, [""])
sketch39.MapMode = "FlatFace"
sketch39.addGeometry(Part.Circle(Vector(80, -100, 0), Vector(0, 0, 1), 5), False)
sketch39.addConstraint([
    Sketcher.Constraint("Diameter", 0, Q("10 mm")),
    Sketcher.Constraint("DistanceX", -1, 1, 0, 3, Q("80 mm")),
    Sketcher.Constraint("DistanceY", 0, 3, -1, 1, Q("100 mm")),
])
pocket38 = doc.addObject("PartDesign::Pocket", "Pocket037")
body.addObject(pocket38)
pocket38.Profile = sketch39
pocket38.Type = "ThroughAll"

sketch40 = doc.addObject("Sketcher::SketchObject", "Sketch039")
body.addObject(sketch40)
sketch40.AttachmentSupport = (doc.XZ_Plane, [""])
sketch40.MapMode = "FlatFace"
sketch40.addGeometry(Part.Circle(Vector(20, -170, 0), Vector(0, 0, 1), 5), False)
sketch40.addConstraint([
    Sketcher.Constraint("Diameter", 0, Q("10 mm")),
    Sketcher.Constraint("DistanceX", -1, 1, 0, 3, Q("20 mm")),
    Sketcher.Constraint("DistanceY", 0, 3, -1, 1, Q("170 mm")),
])
pocket39 = doc.addObject("PartDesign::Pocket", "Pocket038")
body.addObject(pocket39)
pocket39.Profile = sketch40
pocket39.Type = "ThroughAll"

sketch41 = doc.addObject("Sketcher::SketchObject", "Sketch040")
body.addObject(sketch41)
sketch41.AttachmentSupport = (doc.XZ_Plane, [""])
sketch41.MapMode = "FlatFace"
sketch41.addGeometry(Part.Circle(Vector(80, -170, 0), Vector(0, 0, 1), 5), False)
sketch41.addConstraint([
    Sketcher.Constraint("Diameter", 0, Q("10 mm")),
    Sketcher.Constraint("DistanceX", -1, 1, 0, 3, Q("80 mm")),
    Sketcher.Constraint("DistanceY", 0, 3, -1, 1, Q("170 mm")),
])
pocket40 = doc.addObject("PartDesign::Pocket", "Pocket039")
body.addObject(pocket40)
pocket40.Profile = sketch41
pocket40.Type = "ThroughAll"

doc.recompute()
